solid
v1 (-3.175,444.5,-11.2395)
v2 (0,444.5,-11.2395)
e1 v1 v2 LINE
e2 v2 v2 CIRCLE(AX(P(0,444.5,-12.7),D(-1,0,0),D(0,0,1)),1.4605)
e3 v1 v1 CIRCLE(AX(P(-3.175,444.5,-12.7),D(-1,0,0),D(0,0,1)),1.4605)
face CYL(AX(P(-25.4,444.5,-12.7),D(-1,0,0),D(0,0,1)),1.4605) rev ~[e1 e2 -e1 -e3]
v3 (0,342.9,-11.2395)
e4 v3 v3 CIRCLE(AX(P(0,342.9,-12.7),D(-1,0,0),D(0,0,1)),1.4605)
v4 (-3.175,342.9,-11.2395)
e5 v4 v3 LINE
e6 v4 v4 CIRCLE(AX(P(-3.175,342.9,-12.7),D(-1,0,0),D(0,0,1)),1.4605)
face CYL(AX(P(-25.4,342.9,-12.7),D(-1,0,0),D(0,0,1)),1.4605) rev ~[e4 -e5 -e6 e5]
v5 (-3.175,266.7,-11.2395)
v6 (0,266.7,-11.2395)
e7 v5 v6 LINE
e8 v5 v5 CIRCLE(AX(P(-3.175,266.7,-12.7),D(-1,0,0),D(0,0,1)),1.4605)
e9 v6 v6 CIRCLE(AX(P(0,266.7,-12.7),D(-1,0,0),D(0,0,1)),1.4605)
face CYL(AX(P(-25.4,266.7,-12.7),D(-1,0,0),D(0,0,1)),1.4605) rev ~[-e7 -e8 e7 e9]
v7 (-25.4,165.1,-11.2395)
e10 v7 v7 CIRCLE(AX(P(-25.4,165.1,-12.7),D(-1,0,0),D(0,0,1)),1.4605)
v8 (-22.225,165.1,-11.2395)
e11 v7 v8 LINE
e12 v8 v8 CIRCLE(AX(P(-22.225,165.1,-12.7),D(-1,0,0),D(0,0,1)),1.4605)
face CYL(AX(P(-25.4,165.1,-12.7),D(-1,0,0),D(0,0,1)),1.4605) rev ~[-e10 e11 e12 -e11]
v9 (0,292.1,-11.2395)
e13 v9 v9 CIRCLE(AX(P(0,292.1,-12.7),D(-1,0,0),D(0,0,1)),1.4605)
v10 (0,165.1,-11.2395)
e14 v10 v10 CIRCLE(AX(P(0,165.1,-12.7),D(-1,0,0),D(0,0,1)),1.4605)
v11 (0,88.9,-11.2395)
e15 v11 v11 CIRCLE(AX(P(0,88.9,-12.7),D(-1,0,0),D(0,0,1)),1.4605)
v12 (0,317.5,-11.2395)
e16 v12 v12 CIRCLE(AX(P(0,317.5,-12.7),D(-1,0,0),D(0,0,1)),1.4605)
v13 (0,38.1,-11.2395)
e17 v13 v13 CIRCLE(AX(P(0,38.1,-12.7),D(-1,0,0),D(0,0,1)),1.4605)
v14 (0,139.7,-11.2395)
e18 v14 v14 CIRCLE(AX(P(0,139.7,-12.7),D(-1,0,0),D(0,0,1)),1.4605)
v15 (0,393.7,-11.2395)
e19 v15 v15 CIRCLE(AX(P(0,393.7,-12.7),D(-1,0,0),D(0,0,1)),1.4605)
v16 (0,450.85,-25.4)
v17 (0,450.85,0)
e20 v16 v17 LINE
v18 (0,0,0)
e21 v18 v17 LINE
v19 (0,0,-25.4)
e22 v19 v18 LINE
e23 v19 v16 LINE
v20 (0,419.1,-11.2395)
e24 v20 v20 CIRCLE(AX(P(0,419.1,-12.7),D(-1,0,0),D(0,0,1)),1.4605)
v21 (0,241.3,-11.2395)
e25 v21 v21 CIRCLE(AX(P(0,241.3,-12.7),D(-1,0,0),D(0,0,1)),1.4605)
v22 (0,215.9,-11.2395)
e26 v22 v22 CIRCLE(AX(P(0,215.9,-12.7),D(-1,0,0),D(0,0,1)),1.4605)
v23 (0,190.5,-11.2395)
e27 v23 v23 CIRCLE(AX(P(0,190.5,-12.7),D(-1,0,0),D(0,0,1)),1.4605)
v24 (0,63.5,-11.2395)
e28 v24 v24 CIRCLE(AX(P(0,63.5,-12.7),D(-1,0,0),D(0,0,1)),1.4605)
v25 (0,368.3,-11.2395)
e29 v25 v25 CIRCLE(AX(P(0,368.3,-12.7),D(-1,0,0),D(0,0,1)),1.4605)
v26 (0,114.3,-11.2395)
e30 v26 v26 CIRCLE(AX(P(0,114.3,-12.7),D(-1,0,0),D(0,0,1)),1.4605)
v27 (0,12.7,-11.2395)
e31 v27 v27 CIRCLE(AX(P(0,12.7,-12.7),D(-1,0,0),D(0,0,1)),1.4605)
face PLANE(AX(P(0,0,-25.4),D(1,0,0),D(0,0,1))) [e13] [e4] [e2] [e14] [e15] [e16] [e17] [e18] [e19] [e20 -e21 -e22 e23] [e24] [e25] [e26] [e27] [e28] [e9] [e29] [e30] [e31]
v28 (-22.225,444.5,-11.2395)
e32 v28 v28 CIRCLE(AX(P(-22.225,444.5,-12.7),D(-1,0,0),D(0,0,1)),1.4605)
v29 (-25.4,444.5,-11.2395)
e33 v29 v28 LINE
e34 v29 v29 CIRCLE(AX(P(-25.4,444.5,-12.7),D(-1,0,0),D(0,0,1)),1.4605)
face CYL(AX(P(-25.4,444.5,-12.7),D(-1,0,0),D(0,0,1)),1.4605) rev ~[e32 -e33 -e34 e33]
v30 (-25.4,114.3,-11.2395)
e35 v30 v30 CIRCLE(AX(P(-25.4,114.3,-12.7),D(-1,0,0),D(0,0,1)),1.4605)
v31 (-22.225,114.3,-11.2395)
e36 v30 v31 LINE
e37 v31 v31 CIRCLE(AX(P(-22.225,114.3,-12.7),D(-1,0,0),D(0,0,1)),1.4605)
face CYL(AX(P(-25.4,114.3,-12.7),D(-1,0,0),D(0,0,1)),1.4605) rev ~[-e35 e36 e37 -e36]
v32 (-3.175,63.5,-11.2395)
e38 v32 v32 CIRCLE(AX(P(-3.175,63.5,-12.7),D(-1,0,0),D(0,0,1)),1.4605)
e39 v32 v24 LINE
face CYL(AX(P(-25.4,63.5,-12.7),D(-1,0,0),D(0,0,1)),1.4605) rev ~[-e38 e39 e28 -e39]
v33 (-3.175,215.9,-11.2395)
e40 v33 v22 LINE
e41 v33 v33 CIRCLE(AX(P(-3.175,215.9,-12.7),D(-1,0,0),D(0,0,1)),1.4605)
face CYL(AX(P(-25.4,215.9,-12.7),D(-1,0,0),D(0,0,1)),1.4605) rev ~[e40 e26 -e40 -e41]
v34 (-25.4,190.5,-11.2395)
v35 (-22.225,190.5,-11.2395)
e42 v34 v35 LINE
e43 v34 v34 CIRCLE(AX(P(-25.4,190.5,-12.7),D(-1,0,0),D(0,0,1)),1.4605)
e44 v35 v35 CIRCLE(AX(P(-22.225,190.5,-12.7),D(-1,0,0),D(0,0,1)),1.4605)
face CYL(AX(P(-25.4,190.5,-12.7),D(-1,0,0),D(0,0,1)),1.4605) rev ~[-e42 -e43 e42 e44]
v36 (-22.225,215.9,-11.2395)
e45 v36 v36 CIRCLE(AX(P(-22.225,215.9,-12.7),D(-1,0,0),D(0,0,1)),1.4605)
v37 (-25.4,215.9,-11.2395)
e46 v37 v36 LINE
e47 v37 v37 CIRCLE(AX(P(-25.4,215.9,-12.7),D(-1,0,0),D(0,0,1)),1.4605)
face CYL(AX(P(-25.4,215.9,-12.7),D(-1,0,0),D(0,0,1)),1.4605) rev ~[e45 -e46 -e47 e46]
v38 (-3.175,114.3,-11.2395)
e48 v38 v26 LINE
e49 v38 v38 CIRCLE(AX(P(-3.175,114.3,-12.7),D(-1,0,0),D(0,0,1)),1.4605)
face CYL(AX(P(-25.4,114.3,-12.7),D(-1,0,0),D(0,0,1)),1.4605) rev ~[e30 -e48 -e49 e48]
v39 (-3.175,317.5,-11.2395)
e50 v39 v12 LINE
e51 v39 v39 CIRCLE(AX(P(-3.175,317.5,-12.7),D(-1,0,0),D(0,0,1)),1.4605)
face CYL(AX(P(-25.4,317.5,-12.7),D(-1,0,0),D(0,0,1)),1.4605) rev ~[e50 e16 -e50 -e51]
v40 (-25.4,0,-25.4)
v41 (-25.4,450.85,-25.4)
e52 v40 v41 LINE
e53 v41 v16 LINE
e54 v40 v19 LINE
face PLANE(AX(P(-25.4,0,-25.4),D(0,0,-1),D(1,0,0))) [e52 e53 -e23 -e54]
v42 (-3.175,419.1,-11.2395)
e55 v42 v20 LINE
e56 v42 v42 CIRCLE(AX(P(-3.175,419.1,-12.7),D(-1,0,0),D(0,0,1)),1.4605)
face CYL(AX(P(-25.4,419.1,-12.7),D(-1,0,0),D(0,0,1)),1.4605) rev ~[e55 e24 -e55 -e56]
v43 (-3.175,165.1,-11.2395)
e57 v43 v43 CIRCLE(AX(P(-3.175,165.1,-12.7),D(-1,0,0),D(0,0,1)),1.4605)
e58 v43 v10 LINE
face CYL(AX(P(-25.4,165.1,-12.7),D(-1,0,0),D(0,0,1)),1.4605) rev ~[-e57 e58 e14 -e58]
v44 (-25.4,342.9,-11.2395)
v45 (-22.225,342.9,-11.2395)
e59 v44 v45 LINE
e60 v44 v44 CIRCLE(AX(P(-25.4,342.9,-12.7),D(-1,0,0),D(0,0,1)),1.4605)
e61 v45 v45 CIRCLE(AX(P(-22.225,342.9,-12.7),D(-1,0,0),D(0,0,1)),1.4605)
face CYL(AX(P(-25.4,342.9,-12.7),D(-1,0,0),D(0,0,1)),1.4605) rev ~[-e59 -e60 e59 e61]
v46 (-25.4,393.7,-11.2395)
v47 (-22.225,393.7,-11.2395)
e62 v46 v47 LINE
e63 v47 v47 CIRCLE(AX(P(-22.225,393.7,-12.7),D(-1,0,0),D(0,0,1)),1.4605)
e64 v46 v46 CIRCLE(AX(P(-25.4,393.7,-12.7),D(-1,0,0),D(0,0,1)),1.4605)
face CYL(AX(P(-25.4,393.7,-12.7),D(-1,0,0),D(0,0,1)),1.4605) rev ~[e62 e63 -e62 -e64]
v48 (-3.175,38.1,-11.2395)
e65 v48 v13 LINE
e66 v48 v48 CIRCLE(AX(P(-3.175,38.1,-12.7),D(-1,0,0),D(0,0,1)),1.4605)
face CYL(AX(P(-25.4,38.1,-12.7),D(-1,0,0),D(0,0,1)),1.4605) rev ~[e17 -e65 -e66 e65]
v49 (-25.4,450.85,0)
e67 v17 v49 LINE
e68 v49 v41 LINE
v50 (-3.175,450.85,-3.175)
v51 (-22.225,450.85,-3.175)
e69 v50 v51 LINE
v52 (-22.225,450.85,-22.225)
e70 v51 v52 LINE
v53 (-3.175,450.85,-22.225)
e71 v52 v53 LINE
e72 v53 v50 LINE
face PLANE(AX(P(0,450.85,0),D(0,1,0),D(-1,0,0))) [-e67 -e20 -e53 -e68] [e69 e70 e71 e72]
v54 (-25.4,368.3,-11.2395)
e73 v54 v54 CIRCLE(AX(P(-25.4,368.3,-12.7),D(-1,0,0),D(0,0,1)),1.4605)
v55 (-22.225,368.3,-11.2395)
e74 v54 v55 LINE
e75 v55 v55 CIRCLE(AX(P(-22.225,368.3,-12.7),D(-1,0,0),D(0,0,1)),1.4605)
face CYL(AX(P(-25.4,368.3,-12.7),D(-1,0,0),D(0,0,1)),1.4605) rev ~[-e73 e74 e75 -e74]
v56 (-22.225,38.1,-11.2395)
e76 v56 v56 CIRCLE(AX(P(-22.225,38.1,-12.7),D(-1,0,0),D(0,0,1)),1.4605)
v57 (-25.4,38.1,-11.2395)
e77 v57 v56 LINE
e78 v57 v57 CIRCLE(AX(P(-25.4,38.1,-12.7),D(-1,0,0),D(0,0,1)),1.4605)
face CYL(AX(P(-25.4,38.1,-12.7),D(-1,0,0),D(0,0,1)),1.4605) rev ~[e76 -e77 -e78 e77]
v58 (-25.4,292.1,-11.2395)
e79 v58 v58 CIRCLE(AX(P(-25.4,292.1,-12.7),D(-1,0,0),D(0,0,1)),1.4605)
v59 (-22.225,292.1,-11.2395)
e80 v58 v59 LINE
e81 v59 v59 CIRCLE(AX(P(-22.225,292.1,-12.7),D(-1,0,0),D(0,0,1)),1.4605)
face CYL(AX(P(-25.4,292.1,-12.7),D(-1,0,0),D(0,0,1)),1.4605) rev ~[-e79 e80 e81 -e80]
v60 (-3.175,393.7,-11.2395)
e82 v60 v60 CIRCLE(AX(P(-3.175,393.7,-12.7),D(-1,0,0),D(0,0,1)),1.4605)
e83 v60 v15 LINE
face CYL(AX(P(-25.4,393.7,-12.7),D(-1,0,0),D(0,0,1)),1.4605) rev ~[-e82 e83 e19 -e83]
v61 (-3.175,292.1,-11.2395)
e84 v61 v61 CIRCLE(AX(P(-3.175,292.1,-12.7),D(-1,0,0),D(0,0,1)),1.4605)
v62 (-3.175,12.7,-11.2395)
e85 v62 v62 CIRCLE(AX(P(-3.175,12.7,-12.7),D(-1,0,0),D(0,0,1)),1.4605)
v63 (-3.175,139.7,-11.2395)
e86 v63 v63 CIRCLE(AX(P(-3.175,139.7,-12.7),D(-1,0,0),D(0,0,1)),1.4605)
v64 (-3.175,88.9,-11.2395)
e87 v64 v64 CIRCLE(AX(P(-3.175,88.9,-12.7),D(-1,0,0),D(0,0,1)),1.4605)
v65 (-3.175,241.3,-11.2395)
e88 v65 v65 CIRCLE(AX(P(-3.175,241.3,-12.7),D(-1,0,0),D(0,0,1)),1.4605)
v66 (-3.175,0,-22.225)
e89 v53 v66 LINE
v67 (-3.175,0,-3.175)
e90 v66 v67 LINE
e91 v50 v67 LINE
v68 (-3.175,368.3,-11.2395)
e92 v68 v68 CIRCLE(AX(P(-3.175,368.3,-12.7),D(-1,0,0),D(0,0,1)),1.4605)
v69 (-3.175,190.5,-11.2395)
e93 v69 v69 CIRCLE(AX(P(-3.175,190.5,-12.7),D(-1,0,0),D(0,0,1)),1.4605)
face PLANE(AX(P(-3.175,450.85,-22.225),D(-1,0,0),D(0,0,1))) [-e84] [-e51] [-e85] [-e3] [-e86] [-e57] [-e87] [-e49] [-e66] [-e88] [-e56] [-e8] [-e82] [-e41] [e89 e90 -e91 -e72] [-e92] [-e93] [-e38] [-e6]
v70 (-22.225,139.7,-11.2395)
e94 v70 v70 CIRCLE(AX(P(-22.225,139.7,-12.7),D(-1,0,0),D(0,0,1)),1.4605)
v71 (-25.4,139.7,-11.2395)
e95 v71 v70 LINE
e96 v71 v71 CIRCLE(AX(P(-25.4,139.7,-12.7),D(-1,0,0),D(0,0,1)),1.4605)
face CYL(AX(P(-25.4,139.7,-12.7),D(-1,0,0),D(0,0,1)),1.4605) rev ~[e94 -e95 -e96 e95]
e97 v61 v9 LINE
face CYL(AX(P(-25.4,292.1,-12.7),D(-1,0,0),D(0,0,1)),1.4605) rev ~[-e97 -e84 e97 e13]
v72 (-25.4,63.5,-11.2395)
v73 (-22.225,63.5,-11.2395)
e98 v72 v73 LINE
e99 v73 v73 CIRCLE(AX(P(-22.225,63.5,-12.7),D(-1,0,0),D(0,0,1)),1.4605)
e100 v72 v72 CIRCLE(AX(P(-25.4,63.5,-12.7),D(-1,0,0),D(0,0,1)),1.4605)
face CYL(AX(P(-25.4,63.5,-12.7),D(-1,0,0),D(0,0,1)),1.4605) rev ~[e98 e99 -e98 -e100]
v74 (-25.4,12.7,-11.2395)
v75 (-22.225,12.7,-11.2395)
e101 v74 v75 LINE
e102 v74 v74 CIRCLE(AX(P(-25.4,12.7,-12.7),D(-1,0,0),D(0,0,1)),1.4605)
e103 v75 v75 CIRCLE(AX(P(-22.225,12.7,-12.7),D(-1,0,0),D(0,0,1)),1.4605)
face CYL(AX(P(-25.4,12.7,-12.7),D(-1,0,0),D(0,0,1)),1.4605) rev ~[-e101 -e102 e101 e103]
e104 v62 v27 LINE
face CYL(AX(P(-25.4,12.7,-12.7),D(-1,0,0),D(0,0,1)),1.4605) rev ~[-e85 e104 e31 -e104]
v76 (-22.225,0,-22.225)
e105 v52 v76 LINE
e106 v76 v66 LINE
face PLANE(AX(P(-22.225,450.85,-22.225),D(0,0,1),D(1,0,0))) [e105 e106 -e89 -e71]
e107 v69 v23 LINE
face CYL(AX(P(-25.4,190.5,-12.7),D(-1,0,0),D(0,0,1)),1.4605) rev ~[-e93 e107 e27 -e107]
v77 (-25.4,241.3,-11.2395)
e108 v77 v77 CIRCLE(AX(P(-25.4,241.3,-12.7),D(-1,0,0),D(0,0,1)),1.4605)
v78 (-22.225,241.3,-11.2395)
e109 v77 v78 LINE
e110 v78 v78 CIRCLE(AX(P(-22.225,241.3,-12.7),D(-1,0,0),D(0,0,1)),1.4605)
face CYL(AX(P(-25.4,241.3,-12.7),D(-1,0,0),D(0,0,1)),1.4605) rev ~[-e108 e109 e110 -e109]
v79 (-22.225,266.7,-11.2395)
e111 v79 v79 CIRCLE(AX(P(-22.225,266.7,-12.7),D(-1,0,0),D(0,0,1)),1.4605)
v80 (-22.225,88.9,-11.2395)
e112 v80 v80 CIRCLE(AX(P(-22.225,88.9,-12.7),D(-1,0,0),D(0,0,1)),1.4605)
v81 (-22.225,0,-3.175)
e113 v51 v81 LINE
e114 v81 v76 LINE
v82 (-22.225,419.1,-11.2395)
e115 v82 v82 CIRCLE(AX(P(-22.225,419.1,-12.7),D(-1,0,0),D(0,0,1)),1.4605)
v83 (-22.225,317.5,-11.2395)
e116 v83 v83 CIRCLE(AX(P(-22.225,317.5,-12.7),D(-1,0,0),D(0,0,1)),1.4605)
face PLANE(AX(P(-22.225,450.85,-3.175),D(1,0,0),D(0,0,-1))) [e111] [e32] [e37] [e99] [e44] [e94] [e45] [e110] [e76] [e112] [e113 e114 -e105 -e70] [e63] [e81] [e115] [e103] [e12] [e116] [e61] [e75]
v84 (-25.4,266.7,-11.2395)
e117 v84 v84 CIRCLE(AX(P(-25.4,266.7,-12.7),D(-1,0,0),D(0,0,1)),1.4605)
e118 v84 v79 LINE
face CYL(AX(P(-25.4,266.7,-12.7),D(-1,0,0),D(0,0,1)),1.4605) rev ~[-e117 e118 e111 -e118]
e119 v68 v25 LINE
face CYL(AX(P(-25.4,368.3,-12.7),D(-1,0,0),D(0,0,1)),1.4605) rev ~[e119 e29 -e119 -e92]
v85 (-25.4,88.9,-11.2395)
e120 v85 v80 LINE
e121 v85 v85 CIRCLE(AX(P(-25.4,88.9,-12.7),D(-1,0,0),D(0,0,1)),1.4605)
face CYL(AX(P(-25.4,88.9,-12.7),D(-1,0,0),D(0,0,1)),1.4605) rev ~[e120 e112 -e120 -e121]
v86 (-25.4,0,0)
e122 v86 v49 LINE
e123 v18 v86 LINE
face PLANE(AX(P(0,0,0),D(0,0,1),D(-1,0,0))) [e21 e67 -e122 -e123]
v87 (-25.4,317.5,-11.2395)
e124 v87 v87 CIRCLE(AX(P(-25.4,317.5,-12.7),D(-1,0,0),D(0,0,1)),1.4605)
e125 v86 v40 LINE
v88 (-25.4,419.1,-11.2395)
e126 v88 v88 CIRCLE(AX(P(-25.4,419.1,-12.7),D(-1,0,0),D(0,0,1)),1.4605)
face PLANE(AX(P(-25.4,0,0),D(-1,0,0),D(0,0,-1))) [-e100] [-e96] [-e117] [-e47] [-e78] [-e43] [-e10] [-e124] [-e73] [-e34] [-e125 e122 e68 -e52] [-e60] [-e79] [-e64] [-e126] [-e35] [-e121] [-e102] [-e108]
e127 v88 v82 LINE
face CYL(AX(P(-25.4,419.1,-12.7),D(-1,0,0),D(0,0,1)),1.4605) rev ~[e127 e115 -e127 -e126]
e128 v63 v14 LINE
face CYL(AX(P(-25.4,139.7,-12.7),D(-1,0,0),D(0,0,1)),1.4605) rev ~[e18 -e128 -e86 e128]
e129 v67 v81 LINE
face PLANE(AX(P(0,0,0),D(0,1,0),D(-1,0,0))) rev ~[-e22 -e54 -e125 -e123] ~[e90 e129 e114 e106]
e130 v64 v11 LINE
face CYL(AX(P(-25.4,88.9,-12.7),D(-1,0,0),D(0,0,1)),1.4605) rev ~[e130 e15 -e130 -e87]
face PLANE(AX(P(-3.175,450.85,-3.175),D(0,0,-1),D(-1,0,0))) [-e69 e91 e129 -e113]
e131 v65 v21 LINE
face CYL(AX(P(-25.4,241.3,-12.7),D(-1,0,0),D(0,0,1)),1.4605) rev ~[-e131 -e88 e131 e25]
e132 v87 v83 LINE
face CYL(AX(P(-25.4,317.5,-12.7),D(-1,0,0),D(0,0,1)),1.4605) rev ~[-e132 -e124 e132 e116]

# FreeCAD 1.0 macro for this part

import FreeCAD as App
import Part
import Sketcher

V = App.Vector
Q = App.Units.Quantity

doc = App.newDocument("Part")
body = doc.addObject("PartDesign::Body", "Body")

sketch1 = body.newObject("Sketcher::SketchObject", "Sketch")
sketch1.AttachmentSupport = (doc.getObject("XZ_Plane"), [""])
sketch1.MapMode = "FlatFace"
sketch1.addGeometry([
    Part.LineSegment(V(-25.4, 0, 0), V(0, 0, 0)),
    Part.LineSegment(V(0, 0, 0), V(0, -25.4, 0)),
    Part.LineSegment(V(0, -25.4, 0), V(-25.4, -25.4, 0)),
    Part.LineSegment(V(-25.4, -25.4, 0), V(-25.4, 0, 0)),
], False)
sketch1.addConstraint([
    Sketcher.Constraint("Coincident", 0, 2, 1, 1),
    Sketcher.Constraint("Coincident", 1, 2, 2, 1),
    Sketcher.Constraint("Coincident", 2, 2, 3, 1),
    Sketcher.Constraint("Coincident", 3, 2, 0, 1),
    Sketcher.Constraint("Horizontal", 0),
    Sketcher.Constraint("Vertical", 1),
    Sketcher.Constraint("Horizontal", 2),
    Sketcher.Constraint("Vertical", 3),
    Sketcher.Constraint("Coincident", 0, 2, -1, 1),
    Sketcher.Constraint("Equal", 2, 1),
    Sketcher.Constraint("DistanceX", 0, 1, 0, 2, Q("1 in")),
])
pad1 = body.newObject("PartDesign::Pad", "Pad")
pad1.Profile = sketch1
pad1.Length = Q("17.75 in")
pad1.Reversed = True

sketch2 = body.newObject("Sketcher::SketchObject", "Sketch001")
sketch2.AttachmentSupport = (doc.getObject("XZ_Plane"), [""])
sketch2.MapMode = "FlatFace"
sketch2.AttachmentOffset = App.Placement(V(0, 0, -17.75 * 25.4), App.Rotation())
sketch2.addGeometry([
    Part.LineSegment(V(-22.225, -3.175, 0), V(-3.175, -3.175, 0)),
    Part.LineSegment(V(-3.175, -3.175, 0), V(-3.175, -22.225, 0)),
    Part.LineSegment(V(-3.175, -22.225, 0), V(-22.225, -22.225, 0)),
    Part.LineSegment(V(-22.225, -22.225, 0), V(-22.225, -3.175, 0)),
], False)
sketch2.addConstraint([
    Sketcher.Constraint("Coincident", 0, 2, 1, 1),
    Sketcher.Constraint("Coincident", 1, 2, 2, 1),
    Sketcher.Constraint("Coincident", 2, 2, 3, 1),
    Sketcher.Constraint("Coincident", 3, 2, 0, 1),
    Sketcher.Constraint("Horizontal", 0),
    Sketcher.Constraint("Vertical", 1),
    Sketcher.Constraint("Horizontal", 2),
    Sketcher.Constraint("Vertical", 3),
    Sketcher.Constraint("Equal", 2, 1),
    Sketcher.Constraint("DistanceX", 0, 2, -1, 1, Q("0.125 in")),
    Sketcher.Constraint("DistanceY", 0, 2, -1, 1, Q("0.125 in")),
    Sketcher.Constraint("DistanceX", 0, 1, 0, 2, Q("0.75 in")),
])
pocket1 = body.newObject("PartDesign::Pocket", "Pocket")
pocket1.Profile = sketch2
pocket1.Length = Q("17.75 in")
pocket1.Reversed = True

sketch3 = body.newObject("Sketcher::SketchObject", "Sketch002")
sketch3.AttachmentSupport = (doc.getObject("YZ_Plane"), [""])
sketch3.MapMode = "FlatFace"
sketch3.AttachmentOffset = App.Placement(V(0, 0, -1 * 25.4), App.Rotation())
sketch3.addGeometry([
    Part.Circle(V(12.7, -12.7, 0), V(0, 0, 1), 1.4605),
    Part.Circle(V(38.1, -12.7, 0), V(0, 0, 1), 1.4605),
    Part.Circle(V(63.5, -12.7, 0), V(0, 0, 1), 1.4605),
    Part.Circle(V(88.9, -12.7, 0), V(0, 0, 1), 1.4605),
    Part.Circle(V(114.3, -12.7, 0), V(0, 0, 1), 1.4605),
    Part.Circle(V(139.7, -12.7, 0), V(0, 0, 1), 1.4605),
    Part.Circle(V(165.1, -12.7, 0), V(0, 0, 1), 1.4605),
    Part.Circle(V(190.5, -12.7, 0), V(0, 0, 1), 1.4605),
    Part.Circle(V(215.9, -12.7, 0), V(0, 0, 1), 1.4605),
    Part.Circle(V(241.3, -12.7, 0), V(0, 0, 1), 1.4605),
    Part.Circle(V(266.7, -12.7, 0), V(0, 0, 1), 1.4605),
    Part.Circle(V(292.1, -12.7, 0), V(0, 0, 1), 1.4605),
    Part.Circle(V(317.5, -12.7, 0), V(0, 0, 1), 1.4605),
    Part.Circle(V(342.9, -12.7, 0), V(0, 0, 1), 1.4605),
    Part.Circle(V(368.3, -12.7, 0), V(0, 0, 1), 1.4605),
    Part.Circle(V(393.7, -12.7, 0), V(0, 0, 1), 1.4605),
    Part.Circle(V(419.1, -12.7, 0), V(0, 0, 1), 1.4605),
    Part.Circle(V(444.5, -12.7, 0), V(0, 0, 1), 1.4605),
], False)
sketch3.addConstraint([
    Sketcher.Constraint("Equal", 0, 1),
    Sketcher.Constraint("Equal", 1, 2),
    Sketcher.Constraint("Equal", 2, 3),
    Sketcher.Constraint("Equal", 3, 4),
    Sketcher.Constraint("Equal", 4, 5),
    Sketcher.Constraint("Equal", 5, 6),
    Sketcher.Constraint("Equal", 6, 7),
    Sketcher.Constraint("Equal", 7, 8),
    Sketcher.Constraint("Equal", 8, 9),
    Sketcher.Constraint("Equal", 9, 10),
    Sketcher.Constraint("Equal", 10, 11),
    Sketcher.Constraint("Equal", 11, 12),
    Sketcher.Constraint("Equal", 12, 13),
    Sketcher.Constraint("Equal", 13, 14),
    Sketcher.Constraint("Equal", 14, 15),
    Sketcher.Constraint("Equal", 15, 16),
    Sketcher.Constraint("Equal", 16, 17),
    Sketcher.Constraint("Horizontal", 0, 3, 1, 3),
    Sketcher.Constraint("Horizontal", 1, 3, 2, 3),
    Sketcher.Constraint("Horizontal", 2, 3, 3, 3),
    Sketcher.Constraint("Horizontal", 3, 3, 4, 3),
    Sketcher.Constraint("Horizontal", 4, 3, 5, 3),
    Sketcher.Constraint("Horizontal", 5, 3, 6, 3),
    Sketcher.Constraint("Horizontal", 6, 3, 7, 3),
    Sketcher.Constraint("Horizontal", 7, 3, 8, 3),
    Sketcher.Constraint("Horizontal", 8, 3, 9, 3),
    Sketcher.Constraint("Horizontal", 9, 3, 10, 3),
    Sketcher.Constraint("Horizontal", 10, 3, 11, 3),
    Sketcher.Constraint("Horizontal", 11, 3, 12, 3),
    Sketcher.Constraint("Horizontal", 12, 3, 13, 3),
    Sketcher.Constraint("Horizontal", 13, 3, 14, 3),
    Sketcher.Constraint("Horizontal", 14, 3, 15, 3),
    Sketcher.Constraint("Horizontal", 15, 3, 16, 3),
    Sketcher.Constraint("Horizontal", 16, 3, 17, 3),
    Sketcher.Constraint("Diameter", 0, Q("0.115 in")),
    Sketcher.Constraint("DistanceX", 0, 3, 1, 3, Q("1 in")),
    Sketcher.Constraint("DistanceX", 1, 3, 2, 3, Q("1 in")),
    Sketcher.Constraint("DistanceX", 2, 3, 3, 3, Q("1 in")),
    Sketcher.Constraint("DistanceX", 3, 3, 4, 3, Q("1 in")),
    Sketcher.Constraint("DistanceX", 4, 3, 5, 3, Q("1 in")),
    Sketcher.Constraint("DistanceX", 5, 3, 6, 3, Q("1 in")),
    Sketcher.Constraint("DistanceX", 6, 3, 7, 3, Q("1 in")),
    Sketcher.Constraint("DistanceX", 7, 3, 8, 3, Q("1 in")),
    Sketcher.Constraint("DistanceX", 8, 3, 9, 3, Q("1 in")),
    Sketcher.Constraint("DistanceX", 9, 3, 10, 3, Q("1 in")),
    Sketcher.Constraint("DistanceX", 10, 3, 11, 3, Q("1 in")),
    Sketcher.Constraint("DistanceX", 11, 3, 12, 3, Q("1 in")),
    Sketcher.Constraint("DistanceX", 12, 3, 13, 3, Q("1 in")),
    Sketcher.Constraint("DistanceX", 13, 3, 14, 3, Q("1 in")),
    Sketcher.Constraint("DistanceX", 14, 3, 15, 3, Q("1 in")),
    Sketcher.Constraint("DistanceX", 15, 3, 16, 3, Q("1 in")),
    Sketcher.Constraint("DistanceX", 16, 3, 17, 3, Q("1 in")),
    Sketcher.Constraint("DistanceX", -1, 1, 0, 3, Q("0.5 in")),
    Sketcher.Constraint("DistanceY", 0, 3, -1, 1, Q("0.5 in")),
])
pocket2 = body.newObject("PartDesign::Pocket", "Pocket001")
pocket2.Profile = sketch3
pocket2.Length = Q("1 in")
pocket2.Reversed = True

doc.recompute()
